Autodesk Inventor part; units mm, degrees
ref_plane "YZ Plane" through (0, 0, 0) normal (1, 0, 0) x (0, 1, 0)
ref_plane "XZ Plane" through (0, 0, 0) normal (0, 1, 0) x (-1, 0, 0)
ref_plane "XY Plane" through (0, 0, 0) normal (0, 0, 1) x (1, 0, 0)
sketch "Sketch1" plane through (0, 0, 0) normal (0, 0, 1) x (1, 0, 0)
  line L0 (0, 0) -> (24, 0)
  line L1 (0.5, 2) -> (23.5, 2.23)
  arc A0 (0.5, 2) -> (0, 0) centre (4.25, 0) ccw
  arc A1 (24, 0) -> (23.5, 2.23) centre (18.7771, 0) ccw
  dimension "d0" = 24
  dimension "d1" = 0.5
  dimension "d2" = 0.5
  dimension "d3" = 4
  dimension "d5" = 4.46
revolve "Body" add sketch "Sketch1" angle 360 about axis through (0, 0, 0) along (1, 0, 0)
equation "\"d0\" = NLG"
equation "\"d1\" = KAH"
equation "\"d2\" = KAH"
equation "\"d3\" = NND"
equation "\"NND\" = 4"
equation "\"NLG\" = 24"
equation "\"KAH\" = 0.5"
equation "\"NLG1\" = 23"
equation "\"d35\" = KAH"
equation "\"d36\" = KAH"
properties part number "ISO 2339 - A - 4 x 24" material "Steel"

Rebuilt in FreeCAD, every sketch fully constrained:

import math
import FreeCAD as App
import Part
import Sketcher

doc = App.newDocument("Part")
params = doc.addObject("Spreadsheet::Sheet", "Params")
for row, (alias, value) in enumerate([
    ("sketch1_width", "24 mm"),
    ("sketch1_radius", "4.25 mm"),
    ("revolution_angle", "360 deg"),
], start=1):
    params.set(f"A{row}", alias)
    params.set(f"B{row}", "=" + value)
    params.setAlias(f"B{row}", alias)

body = doc.addObject("PartDesign::Body", "Body")

# Sketch on XY plane
sketch1 = doc.addObject("Sketcher::SketchObject", "Sketch")
body.addObject(sketch1)
sketch1.AttachmentSupport = (doc.XY_Plane, [""])
sketch1.MapMode = "FlatFace"
sketch1.addGeometry(Part.ArcOfCircle(Part.Circle(App.Vector(4.25, 0, 0), App.Vector(0, 0, 1), 4.25), math.radians(151.927513), math.radians(180)), False)
sketch1.addGeometry(Part.LineSegment(App.Vector(0, 0, 0), App.Vector(24, 0, 0)), False)
sketch1.addGeometry(Part.ArcOfCircle(Part.Circle(App.Vector(18.7771, 0, 0), App.Vector(0, 0, 1), 5.2229), math.radians(0), math.radians(25.27516)), False)
sketch1.addGeometry(Part.LineSegment(App.Vector(23.5, 2.23, 0), App.Vector(0.5, 2, 0)), False)
sketch1.addConstraint(Sketcher.Constraint("Coincident", 0, 2, 1, 1))
sketch1.addConstraint(Sketcher.Constraint("Coincident", 1, 2, 2, 1))
sketch1.addConstraint(Sketcher.Constraint("Coincident", 2, 2, 3, 1))
sketch1.addConstraint(Sketcher.Constraint("Coincident", 3, 2, 0, 1))
sketch1.addConstraint(Sketcher.Constraint("Horizontal", 1))
sketch1.addConstraint(Sketcher.Constraint("Coincident", 0, 2, -1, 1))
sketch1.addConstraint(Sketcher.Constraint("PointOnObject", 0, 3, -1))
sketch1.addConstraint(Sketcher.Constraint("PointOnObject", 2, 3, -1))
sketch1.addConstraint(Sketcher.Constraint("DistanceX", 1, 1, 1, 2, 24.0))
sketch1.addConstraint(Sketcher.Constraint("DistanceX", -1, 1, 3, 2, 0.5))
sketch1.addConstraint(Sketcher.Constraint("DistanceX", 2, 2, 1, 2, 0.5))
sketch1.addConstraint(Sketcher.Constraint("Radius", 0, 4.25))
sketch1.addConstraint(Sketcher.Constraint("Radius", 2, 5.223))
sketch1.setExpression("Constraints[8]", "Params.sketch1_width")
sketch1.setExpression("Constraints[11]", "Params.sketch1_radius")
revolution = doc.addObject("PartDesign::Revolution", "Revolution")
body.addObject(revolution)
revolution.Profile = sketch1
revolution.ReferenceAxis = (sketch1, ["H_Axis"])
revolution.setExpression("Angle", "Params.revolution_angle")

doc.recompute()
